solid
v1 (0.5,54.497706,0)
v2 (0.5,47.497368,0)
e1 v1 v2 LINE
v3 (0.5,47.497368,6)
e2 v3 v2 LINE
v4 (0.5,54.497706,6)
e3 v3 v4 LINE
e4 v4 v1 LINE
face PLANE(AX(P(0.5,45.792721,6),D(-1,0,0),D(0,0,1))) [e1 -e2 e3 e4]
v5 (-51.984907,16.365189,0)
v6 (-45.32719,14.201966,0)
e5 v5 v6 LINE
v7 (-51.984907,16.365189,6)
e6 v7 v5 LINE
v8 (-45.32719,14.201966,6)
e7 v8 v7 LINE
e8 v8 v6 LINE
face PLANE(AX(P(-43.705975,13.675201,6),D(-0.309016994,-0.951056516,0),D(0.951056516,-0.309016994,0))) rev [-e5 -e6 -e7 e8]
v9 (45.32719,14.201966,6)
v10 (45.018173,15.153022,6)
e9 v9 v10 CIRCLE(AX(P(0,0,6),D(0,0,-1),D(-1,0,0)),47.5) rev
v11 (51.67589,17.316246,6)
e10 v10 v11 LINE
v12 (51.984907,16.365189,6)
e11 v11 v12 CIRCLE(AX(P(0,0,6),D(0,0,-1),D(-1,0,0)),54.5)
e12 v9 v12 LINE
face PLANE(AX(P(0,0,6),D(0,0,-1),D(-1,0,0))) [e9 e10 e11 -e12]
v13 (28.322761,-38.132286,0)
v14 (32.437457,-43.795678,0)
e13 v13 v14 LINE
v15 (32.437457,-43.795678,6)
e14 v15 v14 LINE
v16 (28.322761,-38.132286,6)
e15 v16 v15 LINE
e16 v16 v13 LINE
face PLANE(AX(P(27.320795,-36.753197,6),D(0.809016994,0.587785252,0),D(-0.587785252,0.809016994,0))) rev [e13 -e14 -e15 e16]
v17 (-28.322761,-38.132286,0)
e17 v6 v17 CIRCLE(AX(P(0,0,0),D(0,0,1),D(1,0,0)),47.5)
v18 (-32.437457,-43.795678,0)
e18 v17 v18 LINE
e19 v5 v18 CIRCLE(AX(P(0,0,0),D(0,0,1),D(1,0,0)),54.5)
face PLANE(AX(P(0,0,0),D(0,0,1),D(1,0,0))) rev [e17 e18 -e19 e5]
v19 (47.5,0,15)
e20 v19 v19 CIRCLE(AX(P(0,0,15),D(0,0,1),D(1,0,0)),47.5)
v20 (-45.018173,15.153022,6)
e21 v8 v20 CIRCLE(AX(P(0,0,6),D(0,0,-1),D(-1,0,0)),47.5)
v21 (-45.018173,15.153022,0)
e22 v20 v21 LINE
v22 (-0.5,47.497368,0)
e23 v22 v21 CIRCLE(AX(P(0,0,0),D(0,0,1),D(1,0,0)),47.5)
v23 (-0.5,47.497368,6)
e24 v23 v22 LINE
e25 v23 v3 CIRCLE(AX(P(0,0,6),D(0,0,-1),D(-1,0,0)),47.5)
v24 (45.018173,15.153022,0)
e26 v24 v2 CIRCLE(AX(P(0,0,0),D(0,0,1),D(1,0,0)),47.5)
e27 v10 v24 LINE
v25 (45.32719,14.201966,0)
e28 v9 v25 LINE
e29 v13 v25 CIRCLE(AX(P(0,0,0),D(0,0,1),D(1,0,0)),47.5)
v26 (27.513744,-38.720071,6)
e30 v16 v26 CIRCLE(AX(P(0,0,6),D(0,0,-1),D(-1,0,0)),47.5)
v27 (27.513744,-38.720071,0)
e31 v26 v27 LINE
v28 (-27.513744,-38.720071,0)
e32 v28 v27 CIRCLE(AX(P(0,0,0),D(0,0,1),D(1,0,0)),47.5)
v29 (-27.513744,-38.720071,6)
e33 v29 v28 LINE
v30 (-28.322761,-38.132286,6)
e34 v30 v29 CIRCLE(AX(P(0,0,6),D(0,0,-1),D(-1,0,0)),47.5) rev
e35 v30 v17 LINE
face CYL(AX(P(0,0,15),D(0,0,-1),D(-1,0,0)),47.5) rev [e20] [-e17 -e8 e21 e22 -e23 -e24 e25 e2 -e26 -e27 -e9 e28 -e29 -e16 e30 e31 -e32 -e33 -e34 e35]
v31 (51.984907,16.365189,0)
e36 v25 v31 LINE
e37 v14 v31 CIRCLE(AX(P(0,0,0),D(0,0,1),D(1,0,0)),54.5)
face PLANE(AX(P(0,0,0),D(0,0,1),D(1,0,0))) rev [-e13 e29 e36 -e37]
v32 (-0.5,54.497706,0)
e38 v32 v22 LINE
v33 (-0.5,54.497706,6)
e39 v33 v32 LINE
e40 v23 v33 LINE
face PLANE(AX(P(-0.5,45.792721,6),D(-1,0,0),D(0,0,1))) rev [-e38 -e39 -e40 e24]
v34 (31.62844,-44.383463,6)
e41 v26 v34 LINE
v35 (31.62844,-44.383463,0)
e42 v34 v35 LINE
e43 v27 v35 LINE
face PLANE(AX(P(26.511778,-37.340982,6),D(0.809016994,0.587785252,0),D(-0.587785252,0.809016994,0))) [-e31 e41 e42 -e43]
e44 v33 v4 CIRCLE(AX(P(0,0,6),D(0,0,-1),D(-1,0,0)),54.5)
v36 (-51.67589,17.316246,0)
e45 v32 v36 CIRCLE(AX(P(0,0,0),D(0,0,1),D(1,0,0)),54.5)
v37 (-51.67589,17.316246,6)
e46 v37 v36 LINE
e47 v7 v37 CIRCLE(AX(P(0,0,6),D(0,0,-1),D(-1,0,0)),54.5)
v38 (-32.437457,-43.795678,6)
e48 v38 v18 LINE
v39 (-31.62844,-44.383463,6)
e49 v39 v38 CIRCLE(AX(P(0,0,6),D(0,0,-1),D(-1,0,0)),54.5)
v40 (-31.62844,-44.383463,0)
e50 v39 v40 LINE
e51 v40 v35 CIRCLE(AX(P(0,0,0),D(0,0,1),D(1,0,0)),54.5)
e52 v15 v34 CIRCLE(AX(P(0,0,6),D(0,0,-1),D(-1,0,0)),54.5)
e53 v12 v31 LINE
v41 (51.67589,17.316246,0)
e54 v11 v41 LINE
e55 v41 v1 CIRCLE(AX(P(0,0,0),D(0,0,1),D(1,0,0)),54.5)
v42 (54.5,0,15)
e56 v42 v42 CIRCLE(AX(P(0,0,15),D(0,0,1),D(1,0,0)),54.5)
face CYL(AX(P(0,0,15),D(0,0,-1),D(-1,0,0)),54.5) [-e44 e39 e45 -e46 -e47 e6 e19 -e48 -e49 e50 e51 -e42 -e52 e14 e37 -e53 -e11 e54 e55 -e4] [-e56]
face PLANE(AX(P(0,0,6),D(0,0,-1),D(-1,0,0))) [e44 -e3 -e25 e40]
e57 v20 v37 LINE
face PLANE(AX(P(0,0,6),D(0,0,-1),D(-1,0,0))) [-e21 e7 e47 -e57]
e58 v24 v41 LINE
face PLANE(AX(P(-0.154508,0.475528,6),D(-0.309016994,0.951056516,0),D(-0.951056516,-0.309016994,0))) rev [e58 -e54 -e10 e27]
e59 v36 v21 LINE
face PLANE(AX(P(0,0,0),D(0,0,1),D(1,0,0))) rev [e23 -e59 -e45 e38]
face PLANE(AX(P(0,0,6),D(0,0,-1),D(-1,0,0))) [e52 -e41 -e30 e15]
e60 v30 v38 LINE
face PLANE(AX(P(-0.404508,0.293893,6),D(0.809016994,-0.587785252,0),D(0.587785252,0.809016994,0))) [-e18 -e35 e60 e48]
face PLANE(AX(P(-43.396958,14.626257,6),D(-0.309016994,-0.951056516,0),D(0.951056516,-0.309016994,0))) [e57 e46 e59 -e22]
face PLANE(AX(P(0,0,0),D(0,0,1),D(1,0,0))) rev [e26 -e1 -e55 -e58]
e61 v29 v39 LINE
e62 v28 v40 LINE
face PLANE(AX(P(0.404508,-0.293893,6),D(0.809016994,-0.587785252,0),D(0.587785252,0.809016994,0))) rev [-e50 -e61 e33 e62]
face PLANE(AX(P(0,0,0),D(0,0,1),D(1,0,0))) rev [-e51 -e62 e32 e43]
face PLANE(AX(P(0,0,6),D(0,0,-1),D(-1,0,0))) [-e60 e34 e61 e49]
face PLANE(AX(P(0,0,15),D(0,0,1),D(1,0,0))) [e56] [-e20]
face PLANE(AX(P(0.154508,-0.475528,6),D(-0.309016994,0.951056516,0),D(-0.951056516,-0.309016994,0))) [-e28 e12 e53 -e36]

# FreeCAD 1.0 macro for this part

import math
import FreeCAD as App
import Part
import Sketcher
from FreeCAD import Vector
Q = App.Units.Quantity


def add_polygon(sketch, points):
    """Adds a closed chain of lines whose ends are joined by coincident constraints."""
    first, n = sketch.GeometryCount, len(points)
    for a, b in zip(points, points[1:] + points[:1]):
        sketch.addGeometry(Part.LineSegment(App.Vector(*a, 0), App.Vector(*b, 0)), False)
    for i in range(n):
        sketch.addConstraint(Sketcher.Constraint("Coincident", first + i, 2, first + (i + 1) % n, 1))

doc = App.newDocument("Part")
body = doc.addObject("PartDesign::Body", "Body")

# Sketch on XY plane
sketch1 = body.newObject("Sketcher::SketchObject", "Sketch")
sketch1.AttachmentSupport = (doc.getObject("XY_Plane"), [""])
sketch1.MapMode = "FlatFace"
sketch1.addGeometry([
    Part.Circle(Vector(0, 0, 0), Vector(0, 0, 1), 54),
    Part.Circle(Vector(0, 0, 0), Vector(0, 0, 1), 48),
], False)
sketch1.addConstraint([
    Sketcher.Constraint("Coincident", 0, 3, -1, 1),
    Sketcher.Constraint("Coincident", 1, 3, -1, 1),
    Sketcher.Constraint("Diameter", 0, 109.0),
    Sketcher.Constraint("Diameter", 1, 95.0),
])
pad1 = body.newObject("PartDesign::Pad", "Pad")
pad1.Profile = sketch1
pad1.Length = 15

# Sketch on XY plane
sketch2 = body.newObject("Sketcher::SketchObject", "Sketch001")
sketch2.AttachmentSupport = (doc.getObject("XY_Plane"), [""])
sketch2.MapMode = "FlatFace"
sketch2.addGeometry(Part.LineSegment(Vector(-32.4, -43.8, 0), Vector(-28.3, -38.1, 0)), False)  # 0
sketch2.addGeometry(Part.ArcOfCircle(Part.Circle(Vector(0, 0, 0), Vector(0, 0, 1), 47.5), math.radians(-126.6), math.radians(-125.4)), False)  # 1
sketch2.addGeometry(Part.LineSegment(Vector(-27.5, -38.7, 0), Vector(-31.6, -44.4, 0)), False)  # 2
sketch2.addGeometry(Part.ArcOfCircle(Part.Circle(Vector(0, 0, 0), Vector(0, 0, 1), 54.5), math.radians(-126.53), math.radians(-125.47)), False)  # 3
sketch2.addGeometry(Part.ArcOfCircle(Part.Circle(Vector(0, 0, 0), Vector(0, 0, 1), 47.5), math.radians(17.4), math.radians(18.6)), False)  # 4
sketch2.addGeometry(Part.LineSegment(Vector(45, 15.2, 0), Vector(51.7, 17.3, 0)), False)  # 5
sketch2.addGeometry(Part.ArcOfCircle(Part.Circle(Vector(0, 0, 0), Vector(0, 0, 1), 54.5), math.radians(17.47), math.radians(18.53)), False)  # 6
sketch2.addGeometry(Part.LineSegment(Vector(52, 16.4, 0), Vector(45.3, 14.2, 0)), False)  # 7
add_polygon(sketch2, [(32.1, -45), (26.5, -37.3), (27.3, -36.8), (32.9, -44.5)])  # lines 8-11
add_polygon(sketch2, [(-52.5, 17.6), (-43.4, 14.6), (-43.7, 13.7), (-52.8, 16.6)])  # lines 12-15
add_polygon(sketch2, [(0.5, 55.3), (0.5, 45.8), (-0.5, 45.8), (-0.5, 55.3)])  # lines 16-19
sketch2.addConstraint([
    Sketcher.Constraint("Coincident", 0, 2, 1, 1),
    Sketcher.Constraint("Coincident", 1, 2, 2, 1),
    Sketcher.Constraint("Coincident", 2, 2, 3, 2),
    Sketcher.Constraint("Coincident", 3, 1, 0, 1),
    Sketcher.Constraint("Coincident", 4, 2, 5, 1),
    Sketcher.Constraint("Coincident", 5, 2, 6, 2),
    Sketcher.Constraint("Coincident", 6, 1, 7, 1),
    Sketcher.Constraint("Coincident", 7, 2, 4, 1),
    Sketcher.Constraint("Vertical", 16),
    Sketcher.Constraint("Horizontal", 17),
    Sketcher.Constraint("Vertical", 18),
    Sketcher.Constraint("Horizontal", 19),
    Sketcher.Constraint("Coincident", 1, 3, -1, 1),
    Sketcher.Constraint("Coincident", 3, 3, -1, 1),
    Sketcher.Constraint("Coincident", 4, 3, -1, 1),
    Sketcher.Constraint("Coincident", 6, 3, -1, 1),
    Sketcher.Constraint("Equal", 1, 4),
    Sketcher.Constraint("Equal", 3, 6),
    Sketcher.Constraint("Parallel", 0, 2),
    Sketcher.Constraint("Parallel", 5, 7),
    Sketcher.Constraint("Perpendicular", 8, 9),
    Sketcher.Constraint("Perpendicular", 9, 10),
    Sketcher.Constraint("Perpendicular", 10, 11),
    Sketcher.Constraint("Perpendicular", 12, 13),
    Sketcher.Constraint("Perpendicular", 13, 14),
    Sketcher.Constraint("Perpendicular", 14, 15),
    Sketcher.Constraint("Equal", 0, 2),
    Sketcher.Constraint("Equal", 2, 5),
    Sketcher.Constraint("Equal", 10, 12),
    Sketcher.Constraint("Equal", 11, 13),
    Sketcher.Constraint("DistanceX", 17, 2, 17, 1, 1.0),
    Sketcher.Constraint("Angle", 0, Q("54 deg")),
    Sketcher.Constraint("Angle", 5, Q("18 deg")),
    Sketcher.Constraint("Angle", 8, Q("126 deg")),
    Sketcher.Constraint("Angle", 12, Q("-18 deg")),
    Sketcher.Constraint("Distance", 9, 1.0),
    Sketcher.Constraint("DistanceX", -1, 1, 16, 2, 0.5),
    Sketcher.Constraint("Radius", 1, 47.500003),
    Sketcher.Constraint("Radius", 3, 54.500007),
    Sketcher.Constraint("DistanceY", -1, 1, 13, 2, 13.675201),
    Sketcher.Constraint("DistanceX", 7, 2, 5, 2, 6.3487),
    Sketcher.Constraint("DistanceY", 9, 2, 1, 3, 36.753199),
    Sketcher.Constraint("DistanceX", 15, 2, 4, 3, 52.451302),
    Sketcher.Constraint("DistanceY", 16, 2, 16, 1, 9.520304),
    Sketcher.Constraint("DistanceX", 0, 2, -1, 1, 28.322761),
    Sketcher.Constraint("DistanceX", -1, 1, 10, 2, 32.916689),
    Sketcher.Constraint("DistanceY", 11, 2, -1, 1, 45.04307),
    Sketcher.Constraint("DistanceY", -1, 1, 16, 2, 45.792721),
])
pocket1 = body.newObject("PartDesign::Pocket", "Pocket")
pocket1.Profile = sketch2
pocket1.Length = 6
pocket1.Reversed = True

doc.recompute()
